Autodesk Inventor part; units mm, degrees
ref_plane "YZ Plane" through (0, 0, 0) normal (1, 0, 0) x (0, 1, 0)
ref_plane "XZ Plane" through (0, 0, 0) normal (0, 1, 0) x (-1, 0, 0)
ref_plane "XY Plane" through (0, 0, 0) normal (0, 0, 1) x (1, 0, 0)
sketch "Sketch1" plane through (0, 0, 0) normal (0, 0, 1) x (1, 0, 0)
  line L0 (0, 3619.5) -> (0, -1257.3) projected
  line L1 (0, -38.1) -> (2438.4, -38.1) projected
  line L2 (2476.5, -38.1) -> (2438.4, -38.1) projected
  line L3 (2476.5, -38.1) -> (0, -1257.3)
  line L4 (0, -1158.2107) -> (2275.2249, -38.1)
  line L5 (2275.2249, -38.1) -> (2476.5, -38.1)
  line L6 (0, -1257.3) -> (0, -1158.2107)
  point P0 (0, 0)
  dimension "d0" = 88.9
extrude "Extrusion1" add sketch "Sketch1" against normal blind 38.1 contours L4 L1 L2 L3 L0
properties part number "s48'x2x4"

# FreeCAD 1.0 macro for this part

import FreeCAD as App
import Part
import Sketcher

V = App.Vector
Q = App.Units.Quantity


def add_polygon(sketch, points):
    """Adds a closed chain of lines whose ends are joined by coincident constraints."""
    first, n = sketch.GeometryCount, len(points)
    for a, b in zip(points, points[1:] + points[:1]):
        sketch.addGeometry(Part.LineSegment(App.Vector(*a, 0), App.Vector(*b, 0)), False)
    for i in range(n):
        sketch.addConstraint(Sketcher.Constraint("Coincident", first + i, 2, first + (i + 1) % n, 1))

doc = App.newDocument("Part")
params = doc.addObject("Spreadsheet::Sheet", "Params")
for row, (alias, value) in enumerate([
    ("sketch1_length", "2536 mm"),
    ("pad1_length", "38.1 mm"),
], start=1):
    params.set(f"A{row}", alias)
    params.set(f"B{row}", "=" + value)
    params.setAlias(f"B{row}", alias)

body = doc.addObject("PartDesign::Body", "Body")

# Sketch on XY plane
sketch1 = doc.addObject("Sketcher::SketchObject", "Sketch")
body.addObject(sketch1)
sketch1.AttachmentSupport = (doc.XY_Plane, [""])
sketch1.MapMode = "FlatFace"
add_polygon(sketch1, [(2275, -38), (0, -1158), (0, -1257), (2476, -38)])  # lines 0-3
sketch1.addConstraint([
    Sketcher.Constraint("Vertical", 1),
    Sketcher.Constraint("Horizontal", 3),
    Sketcher.Constraint("PointOnObject", 0, 2, -2),
    Sketcher.Constraint("Parallel", 0, 2),
    Sketcher.Constraint("Distance", 0, Q("2536 mm")),
    Sketcher.Constraint("DistanceY", 1, 2, -1, 1, Q("1257.3 mm")),
    Sketcher.Constraint("DistanceX", -1, 1, 2, 2, Q("2476.5 mm")),
    Sketcher.Constraint("DistanceY", 2, 2, -1, 1, Q("38.1 mm")),
])
sketch1.setExpression("Constraints[8]", "Params.sketch1_length")
pad1 = doc.addObject("PartDesign::Pad", "Pad")
body.addObject(pad1)
pad1.Profile = sketch1
pad1.setExpression("Length", "Params.pad1_length")
pad1.Reversed = True

doc.recompute()
